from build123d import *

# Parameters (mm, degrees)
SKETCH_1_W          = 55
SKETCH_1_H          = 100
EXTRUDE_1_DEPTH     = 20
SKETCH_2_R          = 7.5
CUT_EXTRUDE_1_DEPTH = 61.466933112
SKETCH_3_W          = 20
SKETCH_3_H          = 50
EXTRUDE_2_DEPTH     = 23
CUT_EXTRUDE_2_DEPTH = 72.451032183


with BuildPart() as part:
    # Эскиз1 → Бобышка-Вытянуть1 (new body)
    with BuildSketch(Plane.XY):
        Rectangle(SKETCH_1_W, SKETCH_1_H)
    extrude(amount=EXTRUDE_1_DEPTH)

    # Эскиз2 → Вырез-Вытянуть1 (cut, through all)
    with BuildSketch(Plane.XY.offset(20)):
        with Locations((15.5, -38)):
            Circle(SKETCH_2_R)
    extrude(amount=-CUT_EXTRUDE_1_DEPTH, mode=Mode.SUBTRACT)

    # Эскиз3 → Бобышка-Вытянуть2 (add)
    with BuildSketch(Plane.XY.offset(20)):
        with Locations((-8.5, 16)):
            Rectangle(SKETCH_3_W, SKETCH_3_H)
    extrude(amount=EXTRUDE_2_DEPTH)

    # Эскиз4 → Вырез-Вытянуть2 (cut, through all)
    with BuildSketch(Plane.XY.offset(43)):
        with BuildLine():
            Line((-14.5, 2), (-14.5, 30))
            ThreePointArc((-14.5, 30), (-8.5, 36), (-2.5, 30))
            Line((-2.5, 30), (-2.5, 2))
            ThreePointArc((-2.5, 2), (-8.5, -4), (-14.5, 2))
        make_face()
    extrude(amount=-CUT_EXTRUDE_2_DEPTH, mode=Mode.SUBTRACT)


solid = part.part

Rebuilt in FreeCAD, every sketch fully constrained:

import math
import FreeCAD as App
import Part
import Sketcher


def add_polygon(sketch, points):
    """Adds a closed chain of lines whose ends are joined by coincident constraints."""
    first, n = sketch.GeometryCount, len(points)
    for a, b in zip(points, points[1:] + points[:1]):
        sketch.addGeometry(Part.LineSegment(App.Vector(*a, 0), App.Vector(*b, 0)), False)
    for i in range(n):
        sketch.addConstraint(Sketcher.Constraint("Coincident", first + i, 2, first + (i + 1) % n, 1))

doc = App.newDocument("Part")
body = doc.addObject("PartDesign::Body", "Body")

# Sketch on XY plane
sketch1 = doc.addObject("Sketcher::SketchObject", "Sketch")
body.addObject(sketch1)
sketch1.AttachmentSupport = (doc.XY_Plane, [""])
sketch1.MapMode = "FlatFace"
add_polygon(sketch1, [(-28, 50), (-28, -50), (28, -50), (28, 50)])  # lines 0-3
sketch1.addConstraint(Sketcher.Constraint("Vertical", 0))
sketch1.addConstraint(Sketcher.Constraint("Horizontal", 1))
sketch1.addConstraint(Sketcher.Constraint("Vertical", 2))
sketch1.addConstraint(Sketcher.Constraint("Horizontal", 3))
sketch1.addConstraint(Sketcher.Constraint("Symmetric", 0, 2, 2, 2, -1, 1))
sketch1.addConstraint(Sketcher.Constraint("DistanceX", 1, 1, 1, 2, 55.0))
sketch1.addConstraint(Sketcher.Constraint("DistanceY", 0, 2, 0, 1, 100.0))
pad1 = doc.addObject("PartDesign::Pad", "Pad")
body.addObject(pad1)
pad1.Profile = sketch1
pad1.Length = 20

# Sketch on XY plane
sketch2 = doc.addObject("Sketcher::SketchObject", "Sketch001")
body.addObject(sketch2)
sketch2.AttachmentSupport = (doc.XY_Plane, [""])
sketch2.MapMode = "FlatFace"
sketch2.AttachmentOffset = App.Placement(App.Vector(0, 0, 20), App.Rotation())
sketch2.addGeometry(Part.Circle(App.Vector(16, -38, 0), App.Vector(0, 0, 1), 8), False)
sketch2.addConstraint(Sketcher.Constraint("Diameter", 0, 15.0))
sketch2.addConstraint(Sketcher.Constraint("DistanceY", 0, 3, -1, 1, 38.0))
sketch2.addConstraint(Sketcher.Constraint("DistanceX", -1, 1, 0, 3, 15.5))
pocket1 = doc.addObject("PartDesign::Pocket", "Pocket")
body.addObject(pocket1)
pocket1.Profile = sketch2
pocket1.Type = "ThroughAll"

# Sketch on XY plane
sketch3 = doc.addObject("Sketcher::SketchObject", "Sketch002")
body.addObject(sketch3)
sketch3.AttachmentSupport = (doc.XY_Plane, [""])
sketch3.MapMode = "FlatFace"
sketch3.AttachmentOffset = App.Placement(App.Vector(0, 0, 20), App.Rotation())
add_polygon(sketch3, [(-18, 41), (-18, -9), (2, -9), (2, 41)])  # lines 0-3
sketch3.addConstraint(Sketcher.Constraint("Vertical", 0))
sketch3.addConstraint(Sketcher.Constraint("Horizontal", 1))
sketch3.addConstraint(Sketcher.Constraint("Vertical", 2))
sketch3.addConstraint(Sketcher.Constraint("Horizontal", 3))
sketch3.addConstraint(Sketcher.Constraint("DistanceX", 1, 1, 1, 2, 20.0))
sketch3.addConstraint(Sketcher.Constraint("DistanceY", 0, 2, 0, 1, 50.0))
sketch3.addConstraint(Sketcher.Constraint("DistanceY", 0, 2, -1, 1, 9.0))
sketch3.addConstraint(Sketcher.Constraint("DistanceX", 0, 2, -1, 1, 18.5))
pad2 = doc.addObject("PartDesign::Pad", "Pad001")
body.addObject(pad2)
pad2.Profile = sketch3
pad2.Length = 23

# Sketch on XY plane
sketch4 = doc.addObject("Sketcher::SketchObject", "Sketch003")
body.addObject(sketch4)
sketch4.AttachmentSupport = (doc.XY_Plane, [""])
sketch4.MapMode = "FlatFace"
sketch4.AttachmentOffset = App.Placement(App.Vector(0, 0, 43), App.Rotation())
sketch4.addGeometry(Part.LineSegment(App.Vector(-14, 30, 0), App.Vector(-14, 2, 0)), False)
sketch4.addGeometry(Part.ArcOfCircle(Part.Circle(App.Vector(-8, 2, 0), App.Vector(0, 0, 1), 6), math.radians(180), math.radians(360)), False)
sketch4.addGeometry(Part.LineSegment(App.Vector(-2, 2, 0), App.Vector(-2, 30, 0)), False)
sketch4.addGeometry(Part.ArcOfCircle(Part.Circle(App.Vector(-8, 30, 0), App.Vector(0, 0, 1), 6), math.radians(0), math.radians(180)), False)
sketch4.addConstraint(Sketcher.Constraint("Tangent", 0, 2, 1, 1))
sketch4.addConstraint(Sketcher.Constraint("Tangent", 1, 2, 2, 1))
sketch4.addConstraint(Sketcher.Constraint("Tangent", 2, 2, 3, 1))
sketch4.addConstraint(Sketcher.Constraint("Tangent", 3, 2, 0, 1))
sketch4.addConstraint(Sketcher.Constraint("Vertical", 0))
sketch4.addConstraint(Sketcher.Constraint("Vertical", 2))
sketch4.addConstraint(Sketcher.Constraint("Radius", 1, 6.0))
sketch4.addConstraint(Sketcher.Constraint("DistanceY", 0, 2, 0, 1, 28.0))
sketch4.addConstraint(Sketcher.Constraint("DistanceY", -1, 1, 1, 3, 2.0))
sketch4.addConstraint(Sketcher.Constraint("DistanceX", 1, 3, -1, 1, 8.5))
pocket2 = doc.addObject("PartDesign::Pocket", "Pocket001")
body.addObject(pocket2)
pocket2.Profile = sketch4
pocket2.Type = "ThroughAll"

doc.recompute()
